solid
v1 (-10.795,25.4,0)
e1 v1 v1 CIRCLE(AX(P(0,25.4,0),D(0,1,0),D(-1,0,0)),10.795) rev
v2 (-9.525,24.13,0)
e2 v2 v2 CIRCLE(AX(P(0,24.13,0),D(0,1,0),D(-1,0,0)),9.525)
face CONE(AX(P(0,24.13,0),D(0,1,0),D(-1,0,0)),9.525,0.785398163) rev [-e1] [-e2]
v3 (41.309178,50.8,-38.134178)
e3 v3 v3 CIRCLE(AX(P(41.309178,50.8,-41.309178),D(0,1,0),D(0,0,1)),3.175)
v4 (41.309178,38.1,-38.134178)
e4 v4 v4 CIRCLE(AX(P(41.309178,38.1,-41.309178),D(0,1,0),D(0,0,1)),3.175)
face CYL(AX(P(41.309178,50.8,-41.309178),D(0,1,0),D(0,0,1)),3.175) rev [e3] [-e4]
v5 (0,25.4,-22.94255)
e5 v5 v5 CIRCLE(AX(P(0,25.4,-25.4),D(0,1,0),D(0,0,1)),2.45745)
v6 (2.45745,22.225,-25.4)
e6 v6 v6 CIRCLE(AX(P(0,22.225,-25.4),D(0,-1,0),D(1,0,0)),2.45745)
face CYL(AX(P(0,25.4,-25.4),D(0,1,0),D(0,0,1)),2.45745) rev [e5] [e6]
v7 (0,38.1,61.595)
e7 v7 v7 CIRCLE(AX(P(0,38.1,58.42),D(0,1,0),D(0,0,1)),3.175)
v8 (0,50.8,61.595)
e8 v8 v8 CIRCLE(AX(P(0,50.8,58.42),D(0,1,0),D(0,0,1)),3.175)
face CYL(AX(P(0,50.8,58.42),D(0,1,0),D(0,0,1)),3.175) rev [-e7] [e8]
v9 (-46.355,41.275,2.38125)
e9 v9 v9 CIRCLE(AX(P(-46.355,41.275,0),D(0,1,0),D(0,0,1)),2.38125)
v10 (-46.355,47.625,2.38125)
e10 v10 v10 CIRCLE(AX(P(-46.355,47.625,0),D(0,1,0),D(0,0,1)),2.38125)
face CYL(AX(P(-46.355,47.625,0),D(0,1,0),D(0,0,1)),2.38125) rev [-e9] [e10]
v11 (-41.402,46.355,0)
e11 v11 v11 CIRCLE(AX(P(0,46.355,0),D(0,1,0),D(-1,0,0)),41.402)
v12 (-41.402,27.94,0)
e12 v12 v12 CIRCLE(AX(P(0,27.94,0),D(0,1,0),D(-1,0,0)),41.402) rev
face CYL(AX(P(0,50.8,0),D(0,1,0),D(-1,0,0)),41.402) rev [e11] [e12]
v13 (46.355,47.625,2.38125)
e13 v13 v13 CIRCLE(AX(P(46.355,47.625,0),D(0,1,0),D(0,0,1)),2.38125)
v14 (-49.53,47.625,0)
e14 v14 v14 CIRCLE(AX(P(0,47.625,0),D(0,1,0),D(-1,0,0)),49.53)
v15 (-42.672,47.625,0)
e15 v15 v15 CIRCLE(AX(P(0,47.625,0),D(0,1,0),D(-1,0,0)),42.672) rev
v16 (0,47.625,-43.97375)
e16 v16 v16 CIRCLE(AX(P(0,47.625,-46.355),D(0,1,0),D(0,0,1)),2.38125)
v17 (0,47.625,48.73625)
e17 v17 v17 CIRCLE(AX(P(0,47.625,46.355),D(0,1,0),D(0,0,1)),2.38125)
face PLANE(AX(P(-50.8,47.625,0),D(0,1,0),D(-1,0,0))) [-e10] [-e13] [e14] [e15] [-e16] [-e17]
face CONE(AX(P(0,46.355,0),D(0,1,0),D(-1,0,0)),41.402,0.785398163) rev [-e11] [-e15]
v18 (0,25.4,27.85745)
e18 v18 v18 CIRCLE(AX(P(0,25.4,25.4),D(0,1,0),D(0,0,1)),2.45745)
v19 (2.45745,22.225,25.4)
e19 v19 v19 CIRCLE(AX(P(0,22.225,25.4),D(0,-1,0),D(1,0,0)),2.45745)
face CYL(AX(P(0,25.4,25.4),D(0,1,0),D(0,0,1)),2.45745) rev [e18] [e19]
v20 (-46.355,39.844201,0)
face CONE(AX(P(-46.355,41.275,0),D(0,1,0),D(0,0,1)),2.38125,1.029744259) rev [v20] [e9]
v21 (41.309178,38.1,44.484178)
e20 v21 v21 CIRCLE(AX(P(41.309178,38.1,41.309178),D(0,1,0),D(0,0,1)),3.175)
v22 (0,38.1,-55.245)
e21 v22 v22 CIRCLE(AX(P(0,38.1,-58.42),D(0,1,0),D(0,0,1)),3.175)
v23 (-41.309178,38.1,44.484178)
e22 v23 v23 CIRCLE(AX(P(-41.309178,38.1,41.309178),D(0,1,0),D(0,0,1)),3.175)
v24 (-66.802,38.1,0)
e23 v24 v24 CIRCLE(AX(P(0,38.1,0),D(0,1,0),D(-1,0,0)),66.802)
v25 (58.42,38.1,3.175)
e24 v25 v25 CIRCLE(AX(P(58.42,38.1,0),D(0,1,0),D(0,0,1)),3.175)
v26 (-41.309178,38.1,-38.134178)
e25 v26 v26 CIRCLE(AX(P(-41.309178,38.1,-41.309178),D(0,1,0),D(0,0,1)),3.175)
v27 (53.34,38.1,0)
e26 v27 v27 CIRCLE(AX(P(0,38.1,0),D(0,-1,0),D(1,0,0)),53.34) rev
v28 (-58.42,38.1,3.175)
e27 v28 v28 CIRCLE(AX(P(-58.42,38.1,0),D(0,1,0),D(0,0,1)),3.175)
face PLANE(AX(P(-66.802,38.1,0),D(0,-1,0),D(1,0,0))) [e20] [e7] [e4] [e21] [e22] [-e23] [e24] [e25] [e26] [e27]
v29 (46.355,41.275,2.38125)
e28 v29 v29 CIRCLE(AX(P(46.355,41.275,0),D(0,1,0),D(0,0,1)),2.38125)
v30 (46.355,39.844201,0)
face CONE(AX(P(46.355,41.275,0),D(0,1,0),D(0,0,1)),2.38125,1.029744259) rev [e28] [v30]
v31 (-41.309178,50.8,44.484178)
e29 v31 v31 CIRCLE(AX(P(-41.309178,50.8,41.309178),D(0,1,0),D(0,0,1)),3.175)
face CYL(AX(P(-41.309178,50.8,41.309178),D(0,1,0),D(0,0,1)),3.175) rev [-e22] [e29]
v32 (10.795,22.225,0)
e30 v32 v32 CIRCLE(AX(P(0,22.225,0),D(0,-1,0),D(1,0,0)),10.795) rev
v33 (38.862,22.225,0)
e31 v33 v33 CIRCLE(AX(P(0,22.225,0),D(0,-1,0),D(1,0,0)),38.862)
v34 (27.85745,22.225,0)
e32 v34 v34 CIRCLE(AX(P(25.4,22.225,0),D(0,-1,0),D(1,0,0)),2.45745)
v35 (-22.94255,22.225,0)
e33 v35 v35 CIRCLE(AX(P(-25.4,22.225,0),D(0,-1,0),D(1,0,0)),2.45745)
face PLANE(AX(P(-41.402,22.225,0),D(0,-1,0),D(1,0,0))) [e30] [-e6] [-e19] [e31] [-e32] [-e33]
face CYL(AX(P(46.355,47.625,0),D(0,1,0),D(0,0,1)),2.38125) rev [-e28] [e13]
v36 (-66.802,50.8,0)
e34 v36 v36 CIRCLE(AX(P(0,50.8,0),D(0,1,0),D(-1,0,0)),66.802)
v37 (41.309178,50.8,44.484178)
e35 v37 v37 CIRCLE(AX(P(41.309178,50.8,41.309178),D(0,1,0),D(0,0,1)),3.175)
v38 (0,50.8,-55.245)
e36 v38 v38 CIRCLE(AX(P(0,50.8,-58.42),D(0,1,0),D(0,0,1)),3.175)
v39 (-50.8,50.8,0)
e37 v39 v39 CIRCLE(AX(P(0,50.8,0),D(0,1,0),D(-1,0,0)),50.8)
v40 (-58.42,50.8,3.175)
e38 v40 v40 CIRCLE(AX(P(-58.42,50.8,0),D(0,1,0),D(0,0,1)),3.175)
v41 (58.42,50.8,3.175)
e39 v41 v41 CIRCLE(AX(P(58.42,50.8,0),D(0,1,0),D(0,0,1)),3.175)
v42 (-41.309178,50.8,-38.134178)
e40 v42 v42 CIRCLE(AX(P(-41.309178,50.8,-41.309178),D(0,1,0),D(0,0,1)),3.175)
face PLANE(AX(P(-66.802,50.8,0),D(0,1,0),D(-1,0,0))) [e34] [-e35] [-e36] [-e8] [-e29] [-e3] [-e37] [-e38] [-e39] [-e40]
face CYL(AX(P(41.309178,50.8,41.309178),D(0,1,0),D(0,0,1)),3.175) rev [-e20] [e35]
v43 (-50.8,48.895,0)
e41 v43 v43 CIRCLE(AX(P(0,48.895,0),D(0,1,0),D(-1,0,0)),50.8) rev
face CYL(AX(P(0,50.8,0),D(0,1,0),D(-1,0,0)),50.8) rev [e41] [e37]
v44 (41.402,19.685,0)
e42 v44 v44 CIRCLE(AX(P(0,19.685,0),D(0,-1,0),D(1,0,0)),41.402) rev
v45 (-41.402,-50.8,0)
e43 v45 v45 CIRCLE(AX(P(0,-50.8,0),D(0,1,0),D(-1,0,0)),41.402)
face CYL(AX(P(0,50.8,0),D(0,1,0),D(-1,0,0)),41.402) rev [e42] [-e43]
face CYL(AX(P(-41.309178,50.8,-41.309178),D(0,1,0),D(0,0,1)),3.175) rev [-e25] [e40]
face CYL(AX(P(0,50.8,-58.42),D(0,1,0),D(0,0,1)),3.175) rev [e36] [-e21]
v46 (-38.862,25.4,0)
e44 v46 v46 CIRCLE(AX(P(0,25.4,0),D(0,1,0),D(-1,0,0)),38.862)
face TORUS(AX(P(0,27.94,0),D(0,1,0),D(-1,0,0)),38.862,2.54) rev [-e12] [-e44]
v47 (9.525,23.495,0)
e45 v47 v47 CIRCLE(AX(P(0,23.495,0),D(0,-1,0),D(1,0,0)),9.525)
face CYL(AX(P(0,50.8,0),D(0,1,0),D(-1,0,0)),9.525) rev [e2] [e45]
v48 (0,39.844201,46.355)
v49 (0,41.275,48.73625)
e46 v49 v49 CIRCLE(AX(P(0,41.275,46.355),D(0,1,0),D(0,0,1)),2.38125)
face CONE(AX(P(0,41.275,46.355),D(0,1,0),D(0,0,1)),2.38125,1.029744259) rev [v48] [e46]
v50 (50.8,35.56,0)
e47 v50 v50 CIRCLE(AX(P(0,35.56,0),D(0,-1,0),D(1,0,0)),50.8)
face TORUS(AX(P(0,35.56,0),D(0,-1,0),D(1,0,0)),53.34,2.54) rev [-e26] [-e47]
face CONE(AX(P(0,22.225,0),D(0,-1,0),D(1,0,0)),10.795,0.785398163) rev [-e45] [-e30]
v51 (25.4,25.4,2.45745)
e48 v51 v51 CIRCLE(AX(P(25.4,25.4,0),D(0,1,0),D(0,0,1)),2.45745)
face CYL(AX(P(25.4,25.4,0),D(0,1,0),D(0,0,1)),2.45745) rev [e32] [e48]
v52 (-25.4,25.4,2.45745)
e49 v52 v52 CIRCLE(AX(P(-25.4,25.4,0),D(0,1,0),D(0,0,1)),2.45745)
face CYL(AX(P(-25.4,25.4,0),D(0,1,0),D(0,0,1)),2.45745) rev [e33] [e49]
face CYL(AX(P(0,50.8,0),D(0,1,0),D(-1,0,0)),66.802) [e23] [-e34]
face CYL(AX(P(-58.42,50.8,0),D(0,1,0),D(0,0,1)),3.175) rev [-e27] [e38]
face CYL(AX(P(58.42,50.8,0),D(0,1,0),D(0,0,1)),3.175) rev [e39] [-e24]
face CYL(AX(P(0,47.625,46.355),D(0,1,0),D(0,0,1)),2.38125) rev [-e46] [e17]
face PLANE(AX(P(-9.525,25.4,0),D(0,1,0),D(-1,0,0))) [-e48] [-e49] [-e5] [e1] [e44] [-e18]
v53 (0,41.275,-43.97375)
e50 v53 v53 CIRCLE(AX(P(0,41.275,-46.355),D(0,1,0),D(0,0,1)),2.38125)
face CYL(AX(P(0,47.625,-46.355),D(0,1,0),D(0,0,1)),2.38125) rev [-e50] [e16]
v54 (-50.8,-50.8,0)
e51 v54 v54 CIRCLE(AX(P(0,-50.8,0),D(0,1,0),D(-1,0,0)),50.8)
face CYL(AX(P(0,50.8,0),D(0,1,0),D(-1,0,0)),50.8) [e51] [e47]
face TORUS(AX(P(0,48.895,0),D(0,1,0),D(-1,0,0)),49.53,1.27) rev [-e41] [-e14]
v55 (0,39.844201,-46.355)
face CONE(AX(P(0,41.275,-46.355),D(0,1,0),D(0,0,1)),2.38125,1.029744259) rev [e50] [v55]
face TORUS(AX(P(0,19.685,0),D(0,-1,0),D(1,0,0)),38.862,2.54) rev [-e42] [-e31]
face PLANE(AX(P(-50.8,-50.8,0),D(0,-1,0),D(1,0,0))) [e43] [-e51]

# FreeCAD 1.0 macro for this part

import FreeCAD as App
import Part
import Sketcher

V = App.Vector
Q = App.Units.Quantity


def edges_at(feature, points):
    """Names of the edges that pass closest to the given points."""
    edges = feature.Shape.Edges
    near = lambda p: min(range(len(edges)), key=lambda i: edges[i].distToShape(Part.Vertex(*p))[0])
    return sorted({f"Edge{near(p) + 1}" for p in points})


def add_polygon(sketch, points):
    """Adds a closed chain of lines whose ends are joined by coincident constraints."""
    first, n = sketch.GeometryCount, len(points)
    for a, b in zip(points, points[1:] + points[:1]):
        sketch.addGeometry(Part.LineSegment(App.Vector(*a, 0), App.Vector(*b, 0)), False)
    for i in range(n):
        sketch.addConstraint(Sketcher.Constraint("Coincident", first + i, 2, first + (i + 1) % n, 1))

doc = App.newDocument("Part")
params = doc.addObject("Spreadsheet::Sheet", "Params")
for row, (alias, value) in enumerate([
    ("sketch1_height", "0.5 in"),
    ("sketch1_height2", "3.5 in"),
    ("sketch1_width", "0.63 in"),
    ("sketch1_width2", "1.255 in"),
    ("sketch1_height3", "2.875 in"),
    ("revolution_angle", "360 deg"),
    ("hole_diameter", "0.1935 in"),
    ("sketch3_diameter", "0.1875 in"),
    ("hole2_diameter", "0.1875 in"),
    ("hole2_depth", "0.25 in"),
    ("fillet_radius", "0.1 in"),
    ("fillet2_radius", "0.05 in"),
    ("chamfer_size", "0.05 in"),
    ("sketch4_diameter", "0.25 in"),
    ("hole3_diameter", "0.25 in"),
    ("hole3_depth", "0.5 in"),
], start=1):
    params.set(f"A{row}", alias)
    params.set(f"B{row}", "=" + value)
    params.setAlias(f"B{row}", alias)

body = doc.addObject("PartDesign::Body", "Body")

# Sketch on XY plane
sketch1 = body.newObject("Sketcher::SketchObject", "Sketch")
sketch1.AttachmentSupport = (doc.getObject("XY_Plane"), [""])
sketch1.MapMode = "FlatFace"
add_polygon(sketch1, [(-66.8, 50.8), (-66.8, 38.1), (-50.8, 38.1), (-50.8, -50.8), (-41.4, -50.8), (-41.4, 22.2), (-9.5, 22.2), (-9.5, 25.4), (-41.4, 25.4), (-41.4, 47.6), (-50.8, 47.6), (-50.8, 50.8)])  # lines 0-11
sketch1.addConstraint(Sketcher.Constraint("Vertical", 0))
sketch1.addConstraint(Sketcher.Constraint("Horizontal", 1))
sketch1.addConstraint(Sketcher.Constraint("Vertical", 2))
sketch1.addConstraint(Sketcher.Constraint("Horizontal", 3))
sketch1.addConstraint(Sketcher.Constraint("Vertical", 4))
sketch1.addConstraint(Sketcher.Constraint("Horizontal", 5))
sketch1.addConstraint(Sketcher.Constraint("Vertical", 6))
sketch1.addConstraint(Sketcher.Constraint("Horizontal", 7))
sketch1.addConstraint(Sketcher.Constraint("Vertical", 8))
sketch1.addConstraint(Sketcher.Constraint("Horizontal", 9))
sketch1.addConstraint(Sketcher.Constraint("Vertical", 10))
sketch1.addConstraint(Sketcher.Constraint("Horizontal", 11))
sketch1.addConstraint(Sketcher.Constraint("Symmetric", 2, 2, 10, 2, -1))
sketch1.addConstraint(Sketcher.Constraint("Vertical", 4, 2, 7, 2))
sketch1.addConstraint(Sketcher.Constraint("Equal", 6, 10))
sketch1.addConstraint(Sketcher.Constraint("DistanceY", 0, 2, 0, 1, Q("0.5 in")))
sketch1.addConstraint(Sketcher.Constraint("DistanceY", 2, 2, 2, 1, Q("3.5 in")))
sketch1.addConstraint(Sketcher.Constraint("DistanceX", 1, 2, -1, 1, Q("2 in")))
sketch1.addConstraint(Sketcher.Constraint("DistanceY", -1, 1, 6, 2, Q("1 in")))
sketch1.addConstraint(Sketcher.Constraint("DistanceX", 0, 2, 3, 2, Q("1 in")))
sketch1.addConstraint(Sketcher.Constraint("DistanceX", 1, 1, 1, 2, Q("0.63 in")))
sketch1.addConstraint(Sketcher.Constraint("DistanceX", 5, 1, 5, 2, Q("1.255 in")))
sketch1.addConstraint(Sketcher.Constraint("DistanceY", 4, 1, 4, 2, Q("2.875 in")))
sketch1.setExpression("Constraints[27]", "Params.sketch1_height")
sketch1.setExpression("Constraints[28]", "Params.sketch1_height2")
sketch1.setExpression("Constraints[32]", "Params.sketch1_width")
sketch1.setExpression("Constraints[33]", "Params.sketch1_width2")
sketch1.setExpression("Constraints[34]", "Params.sketch1_height3")
revolution = body.newObject("PartDesign::Revolution", "Revolution")
revolution.Profile = sketch1
revolution.ReferenceAxis = (sketch1, ["V_Axis"])
revolution.setExpression("Angle", "Params.revolution_angle")

# Sketch on XZ plane
sketch2 = body.newObject("Sketcher::SketchObject", "Sketch001")
sketch2.AttachmentSupport = (doc.getObject("XZ_Plane"), [""])
sketch2.MapMode = "FlatFace"
sketch2.AttachmentOffset = App.Placement(V(0, 0, -1 * 25.4), App.Rotation())
sketch2.addGeometry(Part.Circle(V(0, -25.4, 0), V(0, 0, 1), 2.5), False)
sketch2.addGeometry(Part.Circle(V(25.4, 0, 0), V(0, 0, 1), 2.5), False)
sketch2.addGeometry(Part.Circle(V(0, 25.4, 0), V(0, 0, 1), 2.5), False)
sketch2.addGeometry(Part.Circle(V(-25.4, 0, 0), V(0, 0, 1), 2.5), False)
sketch2.addConstraint(Sketcher.Constraint("Equal", 0, 1))
sketch2.addConstraint(Sketcher.Constraint("Equal", 1, 2))
sketch2.addConstraint(Sketcher.Constraint("Equal", 2, 3))
sketch2.addConstraint(Sketcher.Constraint("Symmetric", 0, 3, 2, 3, -1, 1))
sketch2.addConstraint(Sketcher.Constraint("Symmetric", 1, 3, 3, 3, -1, 1))
sketch2.addConstraint(Sketcher.Constraint("PointOnObject", 0, 3, -2))
sketch2.addConstraint(Sketcher.Constraint("PointOnObject", 1, 3, -1))
sketch2.addConstraint(Sketcher.Constraint("DistanceY", 0, 3, -1, 1, Q("1 in")))
sketch2.addConstraint(Sketcher.Constraint("DistanceX", -1, 1, 1, 3, Q("1 in")))
sketch2.addConstraint(Sketcher.Constraint("Diameter", 0, Q("0.1935 in")))
doc.recompute()
hole = body.newObject("PartDesign::Hole", "Hole")
hole.Profile = sketch2
hole.ThreadType = "None"
hole.setExpression("Diameter", "Params.hole_diameter")
hole.DepthType = "ThroughAll"
hole.Reversed = True

# Sketch on XZ plane
sketch3 = body.newObject("Sketcher::SketchObject", "Sketch002")
sketch3.AttachmentSupport = (doc.getObject("XZ_Plane"), [""])
sketch3.MapMode = "FlatFace"
sketch3.AttachmentOffset = App.Placement(V(0, 0, -1.875 * 25.4), App.Rotation())
sketch3.addGeometry(Part.Circle(V(0, -46.4, 0), V(0, 0, 1), 2.4), False)
sketch3.addGeometry(Part.Circle(V(46.4, 0, 0), V(0, 0, 1), 2.4), False)
sketch3.addGeometry(Part.Circle(V(0, 46.4, 0), V(0, 0, 1), 2.4), False)
sketch3.addGeometry(Part.Circle(V(-46.4, 0, 0), V(0, 0, 1), 2.4), False)
sketch3.addConstraint(Sketcher.Constraint("Equal", 0, 1))
sketch3.addConstraint(Sketcher.Constraint("Equal", 1, 2))
sketch3.addConstraint(Sketcher.Constraint("Equal", 2, 3))
sketch3.addConstraint(Sketcher.Constraint("Symmetric", 0, 3, 2, 3, -1, 1))
sketch3.addConstraint(Sketcher.Constraint("Symmetric", 1, 3, 3, 3, -1, 1))
sketch3.addConstraint(Sketcher.Constraint("PointOnObject", 0, 3, -2))
sketch3.addConstraint(Sketcher.Constraint("PointOnObject", 1, 3, -1))
sketch3.addConstraint(Sketcher.Constraint("Diameter", 0, Q("0.1875 in")))
sketch3.addConstraint(Sketcher.Constraint("DistanceY", 0, 3, 2, 3, Q("3.65 in")))
sketch3.addConstraint(Sketcher.Constraint("DistanceX", 3, 3, 1, 3, Q("3.65 in")))
sketch3.setExpression("Constraints[7]", "Params.sketch3_diameter")
doc.recompute()
hole2 = body.newObject("PartDesign::Hole", "Hole001")
hole2.Profile = sketch3
hole2.ThreadType = "None"
hole2.setExpression("Diameter", "Params.hole2_diameter")
hole2.DepthType = "Dimension"
hole2.setExpression("Depth", "Params.hole2_depth")
hole2.DrillPoint = "Angled"
hole2.DrillPointAngle = 118
hole2.Reversed = True
doc.recompute()

fillet = body.newObject("PartDesign::Fillet", "Fillet")
fillet.Base = (hole2, edges_at(hole2, [(41.402, 22.225, 0), (41.402, 25.4, 0), (50.8, 38.1, 0)]))
fillet.setExpression("Radius", "Params.fillet_radius")
doc.recompute()

fillet2 = body.newObject("PartDesign::Fillet", "Fillet001")
fillet2.Base = (fillet, edges_at(fillet, [(50.8, 47.625, 0)]))
fillet2.setExpression("Radius", "Params.fillet2_radius")
doc.recompute()

chamfer = body.newObject("PartDesign::Chamfer", "Chamfer")
chamfer.Base = (fillet2, edges_at(fillet2, [(9.525, 22.225, 0), (9.525, 25.4, 0), (41.402, 47.625, 0)]))
chamfer.setExpression("Size", "Params.chamfer_size")

# Sketch on XZ plane
sketch4 = body.newObject("Sketcher::SketchObject", "Sketch003")
sketch4.AttachmentSupport = (doc.getObject("XZ_Plane"), [""])
sketch4.MapMode = "FlatFace"
sketch4.AttachmentOffset = App.Placement(V(0, 0, -2 * 25.4), App.Rotation())
sketch4.addGeometry(Part.Circle(V(0, -58.4, 0), V(0, 0, 1), 3.2), False)
sketch4.addGeometry(Part.Circle(V(41.3, -41.3, 0), V(0, 0, 1), 3.2), False)
sketch4.addGeometry(Part.Circle(V(58.4, 0, 0), V(0, 0, 1), 3.2), False)
sketch4.addGeometry(Part.Circle(V(41.3, 41.3, 0), V(0, 0, 1), 3.2), False)
sketch4.addGeometry(Part.Circle(V(0, 58.4, 0), V(0, 0, 1), 3.2), False)
sketch4.addGeometry(Part.Circle(V(-41.3, 41.3, 0), V(0, 0, 1), 3.2), False)
sketch4.addGeometry(Part.Circle(V(-58.4, 0, 0), V(0, 0, 1), 3.2), False)
sketch4.addGeometry(Part.Circle(V(-41.3, -41.3, 0), V(0, 0, 1), 3.2), False)
sketch4.addGeometry(Part.Circle(V(0, 0, 0), V(0, 0, 1), 3.2), False)
sketch4.addConstraint(Sketcher.Constraint("Coincident", 8, 3, -1, 1))
sketch4.addConstraint(Sketcher.Constraint("Equal", 0, 1))
sketch4.addConstraint(Sketcher.Constraint("Equal", 1, 2))
sketch4.addConstraint(Sketcher.Constraint("Equal", 2, 3))
sketch4.addConstraint(Sketcher.Constraint("Equal", 3, 4))
sketch4.addConstraint(Sketcher.Constraint("Equal", 4, 5))
sketch4.addConstraint(Sketcher.Constraint("Equal", 5, 6))
sketch4.addConstraint(Sketcher.Constraint("Equal", 6, 7))
sketch4.addConstraint(Sketcher.Constraint("Equal", 7, 8))
sketch4.addConstraint(Sketcher.Constraint("Symmetric", 0, 3, 4, 3, -1, 1))
sketch4.addConstraint(Sketcher.Constraint("Symmetric", 1, 3, 5, 3, -1, 1))
sketch4.addConstraint(Sketcher.Constraint("Symmetric", 2, 3, 6, 3, -1, 1))
sketch4.addConstraint(Sketcher.Constraint("Symmetric", 3, 3, 7, 3, -1, 1))
sketch4.addConstraint(Sketcher.Constraint("Symmetric", 3, 3, 5, 3, -2))
sketch4.addConstraint(Sketcher.Constraint("PointOnObject", 0, 3, -2))
sketch4.addConstraint(Sketcher.Constraint("PointOnObject", 2, 3, -1))
sketch4.addConstraint(Sketcher.Constraint("Diameter", 0, Q("0.25 in")))
sketch4.addConstraint(Sketcher.Constraint("DistanceY", 0, 3, -1, 1, Q("2.3 in")))
sketch4.addConstraint(Sketcher.Constraint("DistanceX", -1, 1, 2, 3, Q("2.3 in")))
sketch4.addConstraint(Sketcher.Constraint("DistanceX", -1, 1, 1, 3, Q("41.309178 mm")))
sketch4.addConstraint(Sketcher.Constraint("DistanceY", 1, 3, -1, 1, Q("41.309178 mm")))
sketch4.setExpression("Constraints[16]", "Params.sketch4_diameter")
doc.recompute()
hole3 = body.newObject("PartDesign::Hole", "Hole002")
hole3.Profile = sketch4
hole3.ThreadType = "None"
hole3.setExpression("Diameter", "Params.hole3_diameter")
hole3.DepthType = "Dimension"
hole3.setExpression("Depth", "Params.hole3_depth")
hole3.DrillPoint = "Angled"
hole3.DrillPointAngle = 118
hole3.Reversed = True

doc.recompute()
